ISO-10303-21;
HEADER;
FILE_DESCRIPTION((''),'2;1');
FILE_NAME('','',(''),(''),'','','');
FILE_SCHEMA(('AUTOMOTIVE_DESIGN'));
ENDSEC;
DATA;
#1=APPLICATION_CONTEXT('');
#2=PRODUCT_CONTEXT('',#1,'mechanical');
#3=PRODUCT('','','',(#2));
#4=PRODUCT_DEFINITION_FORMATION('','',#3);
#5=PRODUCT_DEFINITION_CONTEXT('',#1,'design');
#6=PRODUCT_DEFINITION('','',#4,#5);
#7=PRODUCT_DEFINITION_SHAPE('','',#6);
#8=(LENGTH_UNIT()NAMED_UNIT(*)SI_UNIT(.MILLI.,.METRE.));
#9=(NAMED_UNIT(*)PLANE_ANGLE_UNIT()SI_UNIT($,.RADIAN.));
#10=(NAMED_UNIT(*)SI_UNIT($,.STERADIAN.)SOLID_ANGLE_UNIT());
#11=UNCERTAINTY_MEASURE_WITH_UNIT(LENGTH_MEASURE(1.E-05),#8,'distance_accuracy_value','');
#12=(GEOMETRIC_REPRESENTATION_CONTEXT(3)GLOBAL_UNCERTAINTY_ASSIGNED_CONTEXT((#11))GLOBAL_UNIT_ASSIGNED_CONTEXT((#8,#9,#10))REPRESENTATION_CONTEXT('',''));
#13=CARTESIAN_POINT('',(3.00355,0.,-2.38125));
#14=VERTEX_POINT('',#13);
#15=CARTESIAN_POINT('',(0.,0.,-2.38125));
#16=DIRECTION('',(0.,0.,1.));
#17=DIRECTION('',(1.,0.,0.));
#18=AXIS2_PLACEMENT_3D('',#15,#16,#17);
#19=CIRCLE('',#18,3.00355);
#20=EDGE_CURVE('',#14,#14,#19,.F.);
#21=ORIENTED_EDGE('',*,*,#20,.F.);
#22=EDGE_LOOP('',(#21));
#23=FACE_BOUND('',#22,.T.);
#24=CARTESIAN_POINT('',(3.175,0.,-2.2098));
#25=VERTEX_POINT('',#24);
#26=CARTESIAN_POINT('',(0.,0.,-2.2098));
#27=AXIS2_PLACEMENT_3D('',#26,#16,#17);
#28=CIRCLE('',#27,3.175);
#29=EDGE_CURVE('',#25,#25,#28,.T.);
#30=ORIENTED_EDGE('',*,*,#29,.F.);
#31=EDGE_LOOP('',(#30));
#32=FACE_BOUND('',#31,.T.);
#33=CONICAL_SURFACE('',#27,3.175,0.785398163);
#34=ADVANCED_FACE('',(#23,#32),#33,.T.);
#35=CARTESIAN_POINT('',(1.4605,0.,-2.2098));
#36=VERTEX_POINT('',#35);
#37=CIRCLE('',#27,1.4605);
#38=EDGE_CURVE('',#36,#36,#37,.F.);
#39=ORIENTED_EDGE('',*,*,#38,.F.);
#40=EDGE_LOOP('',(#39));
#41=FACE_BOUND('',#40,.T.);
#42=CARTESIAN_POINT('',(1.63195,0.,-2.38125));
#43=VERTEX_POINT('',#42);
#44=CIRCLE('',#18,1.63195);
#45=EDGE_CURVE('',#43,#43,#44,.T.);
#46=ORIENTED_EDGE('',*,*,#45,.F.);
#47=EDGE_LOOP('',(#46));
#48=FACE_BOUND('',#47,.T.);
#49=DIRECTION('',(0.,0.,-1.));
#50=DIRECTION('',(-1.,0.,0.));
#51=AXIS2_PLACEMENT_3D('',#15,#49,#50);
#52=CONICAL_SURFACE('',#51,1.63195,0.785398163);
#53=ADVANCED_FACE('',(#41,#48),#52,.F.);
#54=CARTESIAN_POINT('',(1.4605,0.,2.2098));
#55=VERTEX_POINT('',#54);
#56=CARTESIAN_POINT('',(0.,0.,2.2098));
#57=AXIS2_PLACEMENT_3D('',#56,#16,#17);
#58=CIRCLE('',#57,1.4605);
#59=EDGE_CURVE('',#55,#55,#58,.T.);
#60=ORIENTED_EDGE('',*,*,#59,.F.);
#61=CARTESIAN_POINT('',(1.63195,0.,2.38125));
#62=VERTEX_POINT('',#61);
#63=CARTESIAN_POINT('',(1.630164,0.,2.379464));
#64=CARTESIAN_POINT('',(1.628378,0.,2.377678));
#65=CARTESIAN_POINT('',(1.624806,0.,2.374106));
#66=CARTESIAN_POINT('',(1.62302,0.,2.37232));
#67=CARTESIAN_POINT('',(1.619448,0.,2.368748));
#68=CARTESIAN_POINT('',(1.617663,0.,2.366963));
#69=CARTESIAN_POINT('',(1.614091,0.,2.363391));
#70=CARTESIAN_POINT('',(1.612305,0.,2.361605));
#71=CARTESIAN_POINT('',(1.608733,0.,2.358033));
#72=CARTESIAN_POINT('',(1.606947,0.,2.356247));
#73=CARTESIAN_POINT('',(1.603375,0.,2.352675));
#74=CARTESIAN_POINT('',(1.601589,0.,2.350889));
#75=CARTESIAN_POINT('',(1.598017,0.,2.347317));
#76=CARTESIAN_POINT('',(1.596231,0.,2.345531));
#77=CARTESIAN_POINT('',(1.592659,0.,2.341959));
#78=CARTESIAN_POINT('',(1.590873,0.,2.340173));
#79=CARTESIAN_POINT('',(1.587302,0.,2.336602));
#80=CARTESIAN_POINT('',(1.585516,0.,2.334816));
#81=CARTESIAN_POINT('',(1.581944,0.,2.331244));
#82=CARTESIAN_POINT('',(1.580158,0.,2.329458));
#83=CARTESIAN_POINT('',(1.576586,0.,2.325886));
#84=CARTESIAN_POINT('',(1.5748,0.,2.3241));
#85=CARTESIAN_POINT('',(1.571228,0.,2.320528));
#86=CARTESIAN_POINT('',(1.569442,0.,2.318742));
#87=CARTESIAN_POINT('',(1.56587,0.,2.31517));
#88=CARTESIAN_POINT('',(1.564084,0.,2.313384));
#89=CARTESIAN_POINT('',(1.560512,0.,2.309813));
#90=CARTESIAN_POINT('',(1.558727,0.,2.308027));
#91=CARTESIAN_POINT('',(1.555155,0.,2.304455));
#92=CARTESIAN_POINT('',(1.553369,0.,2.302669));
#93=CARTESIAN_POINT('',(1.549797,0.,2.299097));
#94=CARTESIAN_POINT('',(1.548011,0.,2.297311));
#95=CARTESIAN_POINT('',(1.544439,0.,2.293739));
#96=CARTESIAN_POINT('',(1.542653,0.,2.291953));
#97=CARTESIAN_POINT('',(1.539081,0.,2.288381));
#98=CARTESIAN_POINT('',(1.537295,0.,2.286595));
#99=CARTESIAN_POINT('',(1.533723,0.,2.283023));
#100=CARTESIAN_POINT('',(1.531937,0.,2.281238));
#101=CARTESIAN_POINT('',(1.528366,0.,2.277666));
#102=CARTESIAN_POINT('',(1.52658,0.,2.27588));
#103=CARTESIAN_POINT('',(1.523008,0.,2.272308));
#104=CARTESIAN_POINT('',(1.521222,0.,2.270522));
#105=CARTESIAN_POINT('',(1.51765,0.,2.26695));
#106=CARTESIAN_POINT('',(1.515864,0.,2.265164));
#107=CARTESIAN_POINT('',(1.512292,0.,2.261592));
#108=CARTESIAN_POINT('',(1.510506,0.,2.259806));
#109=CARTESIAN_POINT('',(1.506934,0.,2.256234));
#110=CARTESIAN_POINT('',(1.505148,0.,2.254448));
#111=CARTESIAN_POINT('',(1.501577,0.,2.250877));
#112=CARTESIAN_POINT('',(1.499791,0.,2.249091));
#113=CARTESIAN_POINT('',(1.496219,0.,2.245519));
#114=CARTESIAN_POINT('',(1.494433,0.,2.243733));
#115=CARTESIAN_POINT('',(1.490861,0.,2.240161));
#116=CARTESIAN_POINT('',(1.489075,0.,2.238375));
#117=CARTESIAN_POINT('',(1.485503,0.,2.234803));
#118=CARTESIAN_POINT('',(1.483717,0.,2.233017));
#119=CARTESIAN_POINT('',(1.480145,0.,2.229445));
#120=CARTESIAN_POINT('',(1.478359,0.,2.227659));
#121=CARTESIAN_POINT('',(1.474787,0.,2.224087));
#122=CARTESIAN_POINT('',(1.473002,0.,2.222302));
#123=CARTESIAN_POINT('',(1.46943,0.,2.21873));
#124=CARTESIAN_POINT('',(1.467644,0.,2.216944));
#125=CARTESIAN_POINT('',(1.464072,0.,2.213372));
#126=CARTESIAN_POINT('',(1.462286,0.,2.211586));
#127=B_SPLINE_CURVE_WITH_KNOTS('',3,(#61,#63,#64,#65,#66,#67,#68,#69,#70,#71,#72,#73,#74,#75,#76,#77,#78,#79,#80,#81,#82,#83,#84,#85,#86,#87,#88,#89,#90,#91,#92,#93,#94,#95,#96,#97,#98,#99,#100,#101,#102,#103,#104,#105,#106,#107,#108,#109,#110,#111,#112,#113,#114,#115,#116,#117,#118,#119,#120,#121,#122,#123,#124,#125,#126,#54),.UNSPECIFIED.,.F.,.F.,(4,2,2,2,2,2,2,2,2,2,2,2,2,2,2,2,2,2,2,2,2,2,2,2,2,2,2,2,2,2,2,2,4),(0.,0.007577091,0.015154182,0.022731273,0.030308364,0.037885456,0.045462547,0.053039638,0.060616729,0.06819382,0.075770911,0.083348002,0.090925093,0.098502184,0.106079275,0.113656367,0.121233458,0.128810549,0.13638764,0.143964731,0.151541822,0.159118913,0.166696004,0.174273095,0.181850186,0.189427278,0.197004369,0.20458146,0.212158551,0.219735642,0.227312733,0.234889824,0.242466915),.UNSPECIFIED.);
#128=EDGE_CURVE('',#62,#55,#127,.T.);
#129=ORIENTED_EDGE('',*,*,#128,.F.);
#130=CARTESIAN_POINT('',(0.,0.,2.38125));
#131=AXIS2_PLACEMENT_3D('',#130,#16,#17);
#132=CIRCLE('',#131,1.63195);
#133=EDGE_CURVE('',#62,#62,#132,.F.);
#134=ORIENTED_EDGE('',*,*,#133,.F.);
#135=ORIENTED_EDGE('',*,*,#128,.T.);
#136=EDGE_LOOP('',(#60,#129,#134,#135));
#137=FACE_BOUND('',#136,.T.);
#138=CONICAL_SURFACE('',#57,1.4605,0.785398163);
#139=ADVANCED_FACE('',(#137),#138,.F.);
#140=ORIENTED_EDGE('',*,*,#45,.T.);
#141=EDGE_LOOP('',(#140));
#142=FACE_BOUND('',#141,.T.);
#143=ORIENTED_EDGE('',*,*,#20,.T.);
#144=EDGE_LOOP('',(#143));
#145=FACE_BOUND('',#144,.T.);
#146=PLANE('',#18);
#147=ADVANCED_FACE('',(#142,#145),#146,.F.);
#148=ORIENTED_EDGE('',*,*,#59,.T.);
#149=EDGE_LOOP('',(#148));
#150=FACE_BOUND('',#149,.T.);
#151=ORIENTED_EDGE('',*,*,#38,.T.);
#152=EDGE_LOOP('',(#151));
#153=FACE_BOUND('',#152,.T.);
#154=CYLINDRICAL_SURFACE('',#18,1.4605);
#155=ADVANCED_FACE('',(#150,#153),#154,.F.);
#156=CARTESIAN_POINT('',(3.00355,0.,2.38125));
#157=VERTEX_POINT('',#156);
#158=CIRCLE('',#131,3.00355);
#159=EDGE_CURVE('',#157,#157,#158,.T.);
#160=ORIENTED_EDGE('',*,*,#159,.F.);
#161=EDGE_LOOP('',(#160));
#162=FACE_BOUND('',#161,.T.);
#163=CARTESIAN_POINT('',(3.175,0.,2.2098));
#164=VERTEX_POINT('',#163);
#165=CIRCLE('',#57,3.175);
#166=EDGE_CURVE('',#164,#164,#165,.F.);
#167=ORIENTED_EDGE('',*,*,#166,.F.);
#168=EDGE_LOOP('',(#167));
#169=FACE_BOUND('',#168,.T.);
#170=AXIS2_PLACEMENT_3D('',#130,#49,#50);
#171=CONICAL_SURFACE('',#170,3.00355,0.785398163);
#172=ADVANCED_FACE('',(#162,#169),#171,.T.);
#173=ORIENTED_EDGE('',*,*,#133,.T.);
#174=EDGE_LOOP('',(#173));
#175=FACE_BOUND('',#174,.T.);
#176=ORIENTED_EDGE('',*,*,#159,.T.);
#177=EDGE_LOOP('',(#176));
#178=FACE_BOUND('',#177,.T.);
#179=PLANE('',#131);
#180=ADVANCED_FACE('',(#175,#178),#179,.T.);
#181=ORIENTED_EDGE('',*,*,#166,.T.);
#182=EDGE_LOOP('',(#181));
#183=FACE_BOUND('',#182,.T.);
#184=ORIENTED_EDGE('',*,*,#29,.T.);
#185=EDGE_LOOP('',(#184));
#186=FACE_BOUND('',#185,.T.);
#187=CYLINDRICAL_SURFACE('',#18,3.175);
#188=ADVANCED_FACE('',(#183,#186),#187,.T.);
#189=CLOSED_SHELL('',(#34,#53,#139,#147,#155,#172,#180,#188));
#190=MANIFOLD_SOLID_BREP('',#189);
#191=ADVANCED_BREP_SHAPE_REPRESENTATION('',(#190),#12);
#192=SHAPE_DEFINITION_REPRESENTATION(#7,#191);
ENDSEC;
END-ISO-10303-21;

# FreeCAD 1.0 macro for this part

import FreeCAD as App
import Part
import Sketcher
Q = App.Units.Quantity


def edges_at(feature, points):
    """Names of the edges that pass closest to the given points."""
    edges = feature.Shape.Edges
    near = lambda p: min(range(len(edges)), key=lambda i: edges[i].distToShape(Part.Vertex(*p))[0])
    return sorted({f"Edge{near(p) + 1}" for p in points})

doc = App.newDocument("Part")
body = doc.addObject("PartDesign::Body", "Body")

# Sketch on XY plane
sketch1 = body.newObject("Sketcher::SketchObject", "Sketch")
sketch1.AttachmentSupport = (doc.getObject("XY_Plane"), [""])
sketch1.MapMode = "FlatFace"
sketch1.addGeometry([
    Part.Circle(App.Vector(0, 0, 0), App.Vector(0, 0, 1), 3.175),
    Part.Circle(App.Vector(0, 0, 0), App.Vector(0, 0, 1), 1.4605),
], False)
sketch1.addConstraint([
    Sketcher.Constraint("Coincident", 0, 3, -1, 1),
    Sketcher.Constraint("Coincident", 1, 3, -1, 1),
    Sketcher.Constraint("Diameter", 0, Q("0.25 in")),
    Sketcher.Constraint("Diameter", 1, Q("0.115 in")),
])
pad1 = body.newObject("PartDesign::Pad", "Pad")
pad1.Profile = sketch1
pad1.Type = "TwoLengths"
pad1.Length = Q("0.09375 in")
pad1.Length2 = Q("0.09375 in")
doc.recompute()

chamfer = body.newObject("PartDesign::Chamfer", "Chamfer")
chamfer.Base = (pad1, edges_at(pad1, [
    (-3.175, 0, -2.381),
    (-1.46, 0, -2.381),
    (-3.175, 0, 2.381),
    (-1.46, 0, 2.381),
]))
chamfer.Size = 0.17145

doc.recompute()
